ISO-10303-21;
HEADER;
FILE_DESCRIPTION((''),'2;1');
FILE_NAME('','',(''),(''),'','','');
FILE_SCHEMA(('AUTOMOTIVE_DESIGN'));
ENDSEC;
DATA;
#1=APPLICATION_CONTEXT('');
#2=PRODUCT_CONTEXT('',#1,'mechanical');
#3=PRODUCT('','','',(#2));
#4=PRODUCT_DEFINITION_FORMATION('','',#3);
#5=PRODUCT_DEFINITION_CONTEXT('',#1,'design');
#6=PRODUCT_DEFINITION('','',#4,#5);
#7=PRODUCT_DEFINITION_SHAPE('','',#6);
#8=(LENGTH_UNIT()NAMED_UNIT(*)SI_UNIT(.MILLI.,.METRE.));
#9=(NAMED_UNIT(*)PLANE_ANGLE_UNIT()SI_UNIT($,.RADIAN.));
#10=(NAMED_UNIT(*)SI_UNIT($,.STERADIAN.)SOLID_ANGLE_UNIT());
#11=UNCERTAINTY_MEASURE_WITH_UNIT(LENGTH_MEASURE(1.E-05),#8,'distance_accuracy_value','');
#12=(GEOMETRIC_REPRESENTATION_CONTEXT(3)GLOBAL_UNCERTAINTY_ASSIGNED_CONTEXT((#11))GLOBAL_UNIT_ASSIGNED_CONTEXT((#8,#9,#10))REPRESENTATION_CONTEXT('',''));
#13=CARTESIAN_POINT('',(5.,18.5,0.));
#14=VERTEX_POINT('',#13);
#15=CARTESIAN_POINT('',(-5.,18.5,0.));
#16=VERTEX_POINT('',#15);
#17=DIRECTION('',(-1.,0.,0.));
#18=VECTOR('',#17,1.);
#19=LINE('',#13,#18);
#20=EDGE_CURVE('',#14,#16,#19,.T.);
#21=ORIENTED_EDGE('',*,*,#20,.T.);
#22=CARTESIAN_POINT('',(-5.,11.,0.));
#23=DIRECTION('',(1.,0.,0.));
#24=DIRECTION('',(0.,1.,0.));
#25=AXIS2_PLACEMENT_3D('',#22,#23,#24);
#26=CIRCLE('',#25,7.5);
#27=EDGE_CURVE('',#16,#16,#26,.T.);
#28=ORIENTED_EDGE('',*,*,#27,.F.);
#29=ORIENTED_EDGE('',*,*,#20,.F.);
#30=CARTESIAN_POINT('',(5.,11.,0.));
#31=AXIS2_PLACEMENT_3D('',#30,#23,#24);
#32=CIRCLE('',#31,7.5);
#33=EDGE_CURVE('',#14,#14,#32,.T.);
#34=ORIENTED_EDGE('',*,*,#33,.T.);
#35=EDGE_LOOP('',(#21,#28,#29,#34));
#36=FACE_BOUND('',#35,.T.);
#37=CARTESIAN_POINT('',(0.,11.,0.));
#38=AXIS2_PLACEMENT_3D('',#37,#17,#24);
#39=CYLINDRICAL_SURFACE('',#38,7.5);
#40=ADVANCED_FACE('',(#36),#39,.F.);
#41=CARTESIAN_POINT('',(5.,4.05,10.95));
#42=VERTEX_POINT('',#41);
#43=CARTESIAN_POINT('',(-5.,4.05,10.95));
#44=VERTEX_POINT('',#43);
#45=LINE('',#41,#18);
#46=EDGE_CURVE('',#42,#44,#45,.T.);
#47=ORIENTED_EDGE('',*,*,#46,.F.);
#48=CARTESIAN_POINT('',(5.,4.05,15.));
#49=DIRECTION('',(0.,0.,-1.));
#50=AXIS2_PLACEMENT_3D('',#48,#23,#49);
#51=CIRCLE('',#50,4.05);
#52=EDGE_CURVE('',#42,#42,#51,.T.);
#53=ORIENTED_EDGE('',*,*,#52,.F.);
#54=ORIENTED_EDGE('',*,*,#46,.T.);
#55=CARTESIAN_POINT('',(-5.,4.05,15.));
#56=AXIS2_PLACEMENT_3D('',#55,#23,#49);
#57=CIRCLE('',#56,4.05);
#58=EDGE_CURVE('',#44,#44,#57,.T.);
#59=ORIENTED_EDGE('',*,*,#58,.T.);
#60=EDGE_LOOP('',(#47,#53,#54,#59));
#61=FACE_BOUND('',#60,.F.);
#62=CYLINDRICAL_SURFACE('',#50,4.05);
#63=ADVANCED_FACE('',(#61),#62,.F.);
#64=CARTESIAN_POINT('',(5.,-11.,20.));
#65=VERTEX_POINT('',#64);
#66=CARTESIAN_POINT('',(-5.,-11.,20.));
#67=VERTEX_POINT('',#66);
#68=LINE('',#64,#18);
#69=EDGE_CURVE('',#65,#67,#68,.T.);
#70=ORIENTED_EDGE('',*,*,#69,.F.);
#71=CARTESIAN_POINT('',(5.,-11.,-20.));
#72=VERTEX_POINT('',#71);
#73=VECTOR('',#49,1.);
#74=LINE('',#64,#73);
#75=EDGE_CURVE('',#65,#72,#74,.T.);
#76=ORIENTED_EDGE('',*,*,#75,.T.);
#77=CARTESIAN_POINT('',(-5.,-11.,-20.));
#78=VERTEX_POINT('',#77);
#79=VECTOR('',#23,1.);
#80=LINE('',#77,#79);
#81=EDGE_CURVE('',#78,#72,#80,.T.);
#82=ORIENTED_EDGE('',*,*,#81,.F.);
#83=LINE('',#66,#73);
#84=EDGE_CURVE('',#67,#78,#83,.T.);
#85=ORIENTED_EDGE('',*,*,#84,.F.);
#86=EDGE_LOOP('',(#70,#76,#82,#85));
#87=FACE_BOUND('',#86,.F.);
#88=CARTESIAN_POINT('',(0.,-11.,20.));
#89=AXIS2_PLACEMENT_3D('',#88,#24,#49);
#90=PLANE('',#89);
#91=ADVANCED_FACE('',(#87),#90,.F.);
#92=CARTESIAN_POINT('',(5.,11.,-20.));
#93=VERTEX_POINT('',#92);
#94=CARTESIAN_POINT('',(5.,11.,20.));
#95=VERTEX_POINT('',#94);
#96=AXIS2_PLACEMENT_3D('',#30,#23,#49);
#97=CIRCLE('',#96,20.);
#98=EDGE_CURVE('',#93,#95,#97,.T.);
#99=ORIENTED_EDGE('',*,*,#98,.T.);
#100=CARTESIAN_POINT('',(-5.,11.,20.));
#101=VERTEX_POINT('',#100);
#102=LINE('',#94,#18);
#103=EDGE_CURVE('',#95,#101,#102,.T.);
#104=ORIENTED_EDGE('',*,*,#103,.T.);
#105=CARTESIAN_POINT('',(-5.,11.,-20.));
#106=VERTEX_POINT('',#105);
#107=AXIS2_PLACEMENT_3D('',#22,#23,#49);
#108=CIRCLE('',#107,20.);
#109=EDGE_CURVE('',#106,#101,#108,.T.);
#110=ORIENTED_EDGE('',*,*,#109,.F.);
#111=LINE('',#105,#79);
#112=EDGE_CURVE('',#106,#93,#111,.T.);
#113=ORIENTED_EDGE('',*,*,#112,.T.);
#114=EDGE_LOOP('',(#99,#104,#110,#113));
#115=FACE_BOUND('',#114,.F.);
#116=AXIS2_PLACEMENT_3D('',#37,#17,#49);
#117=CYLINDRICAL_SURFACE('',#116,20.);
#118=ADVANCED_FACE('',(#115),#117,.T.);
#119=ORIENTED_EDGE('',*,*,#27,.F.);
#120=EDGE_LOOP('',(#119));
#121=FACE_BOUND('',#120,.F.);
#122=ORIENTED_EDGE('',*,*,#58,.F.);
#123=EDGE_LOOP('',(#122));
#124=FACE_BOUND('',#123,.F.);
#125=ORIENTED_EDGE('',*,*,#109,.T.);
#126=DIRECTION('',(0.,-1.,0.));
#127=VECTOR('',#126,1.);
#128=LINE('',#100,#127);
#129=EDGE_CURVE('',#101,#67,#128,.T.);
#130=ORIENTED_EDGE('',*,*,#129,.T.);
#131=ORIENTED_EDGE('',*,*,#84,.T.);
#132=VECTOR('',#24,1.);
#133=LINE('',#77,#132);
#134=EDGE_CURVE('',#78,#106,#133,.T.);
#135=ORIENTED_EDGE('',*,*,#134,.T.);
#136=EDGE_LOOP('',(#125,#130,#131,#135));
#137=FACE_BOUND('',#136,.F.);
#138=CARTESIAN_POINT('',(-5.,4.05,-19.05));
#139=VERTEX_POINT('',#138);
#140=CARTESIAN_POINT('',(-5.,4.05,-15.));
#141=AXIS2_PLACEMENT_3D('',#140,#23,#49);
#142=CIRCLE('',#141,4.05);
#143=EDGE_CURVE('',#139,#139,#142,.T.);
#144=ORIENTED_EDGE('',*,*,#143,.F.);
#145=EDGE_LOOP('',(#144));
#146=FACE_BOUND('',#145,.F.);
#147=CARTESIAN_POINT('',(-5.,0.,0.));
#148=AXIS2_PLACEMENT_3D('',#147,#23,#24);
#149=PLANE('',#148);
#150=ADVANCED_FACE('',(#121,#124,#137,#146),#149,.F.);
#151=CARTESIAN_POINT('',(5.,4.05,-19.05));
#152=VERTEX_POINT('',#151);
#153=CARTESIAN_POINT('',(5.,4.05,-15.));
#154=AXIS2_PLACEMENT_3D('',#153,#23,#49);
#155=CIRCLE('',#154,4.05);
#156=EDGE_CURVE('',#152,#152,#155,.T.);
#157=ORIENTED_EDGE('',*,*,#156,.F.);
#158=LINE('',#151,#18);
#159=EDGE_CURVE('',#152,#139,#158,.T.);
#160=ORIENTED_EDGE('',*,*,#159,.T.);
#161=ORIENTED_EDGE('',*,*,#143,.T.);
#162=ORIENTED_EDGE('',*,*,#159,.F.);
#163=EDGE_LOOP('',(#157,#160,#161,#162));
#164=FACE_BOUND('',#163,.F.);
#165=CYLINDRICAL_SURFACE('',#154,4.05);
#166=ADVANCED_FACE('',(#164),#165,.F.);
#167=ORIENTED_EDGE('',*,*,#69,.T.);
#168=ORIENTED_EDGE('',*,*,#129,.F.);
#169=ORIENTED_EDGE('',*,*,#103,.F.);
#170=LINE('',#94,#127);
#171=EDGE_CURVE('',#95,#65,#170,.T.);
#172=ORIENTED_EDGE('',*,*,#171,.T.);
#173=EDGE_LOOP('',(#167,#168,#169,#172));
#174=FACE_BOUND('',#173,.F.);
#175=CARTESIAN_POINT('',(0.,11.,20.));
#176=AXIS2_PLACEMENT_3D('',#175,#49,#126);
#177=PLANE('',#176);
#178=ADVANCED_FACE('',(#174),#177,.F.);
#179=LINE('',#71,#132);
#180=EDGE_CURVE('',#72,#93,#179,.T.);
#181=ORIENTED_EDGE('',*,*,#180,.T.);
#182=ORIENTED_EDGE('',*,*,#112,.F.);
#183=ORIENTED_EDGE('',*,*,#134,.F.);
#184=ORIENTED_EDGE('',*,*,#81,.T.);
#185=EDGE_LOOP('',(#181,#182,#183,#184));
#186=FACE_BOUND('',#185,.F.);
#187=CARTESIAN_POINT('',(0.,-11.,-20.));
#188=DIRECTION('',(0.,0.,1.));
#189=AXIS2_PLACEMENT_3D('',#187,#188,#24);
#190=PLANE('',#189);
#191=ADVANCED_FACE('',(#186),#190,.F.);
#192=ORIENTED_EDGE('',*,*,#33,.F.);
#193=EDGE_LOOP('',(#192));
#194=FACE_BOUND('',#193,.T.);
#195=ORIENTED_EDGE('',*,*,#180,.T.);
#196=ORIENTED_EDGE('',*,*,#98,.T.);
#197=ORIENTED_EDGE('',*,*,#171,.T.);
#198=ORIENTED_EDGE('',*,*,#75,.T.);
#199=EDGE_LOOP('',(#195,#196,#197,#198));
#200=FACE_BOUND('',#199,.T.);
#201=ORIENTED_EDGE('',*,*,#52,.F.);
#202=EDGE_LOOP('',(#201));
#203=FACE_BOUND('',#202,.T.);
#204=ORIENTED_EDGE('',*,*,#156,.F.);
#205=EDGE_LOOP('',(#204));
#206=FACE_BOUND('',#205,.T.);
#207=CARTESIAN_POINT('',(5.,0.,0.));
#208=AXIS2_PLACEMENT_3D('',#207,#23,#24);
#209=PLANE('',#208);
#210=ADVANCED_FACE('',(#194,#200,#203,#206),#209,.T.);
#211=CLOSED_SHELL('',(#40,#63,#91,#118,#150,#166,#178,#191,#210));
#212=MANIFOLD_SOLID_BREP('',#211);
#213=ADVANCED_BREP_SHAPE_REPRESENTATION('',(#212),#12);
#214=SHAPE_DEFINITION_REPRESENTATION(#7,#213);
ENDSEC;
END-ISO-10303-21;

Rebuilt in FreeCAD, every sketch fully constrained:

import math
import FreeCAD as App
import Part
import Sketcher
from FreeCAD import Vector

doc = App.newDocument("Part")
body = doc.addObject("PartDesign::Body", "Body")

# Sketch on YZ plane
sketch1 = body.newObject("Sketcher::SketchObject", "Sketch")
sketch1.AttachmentSupport = (doc.getObject("YZ_Plane"), [""])
sketch1.MapMode = "FlatFace"
sketch1.addGeometry([
    Part.LineSegment(Vector(-11, 20, 0), Vector(-11, -20, 0)),  # 0
    Part.LineSegment(Vector(-11, -20, 0), Vector(11, -20, 0)),  # 1
    Part.ArcOfCircle(Part.Circle(Vector(11, 0, 0), Vector(0, 0, 1), 20), math.radians(-90), math.radians(90)),  # 2
    Part.LineSegment(Vector(11, 20, 0), Vector(-11, 20, 0)),  # 3
    Part.Circle(Vector(11, 0, 0), Vector(0, 0, 1), 7.5),  # 4
], False)
sketch1.addConstraint([
    Sketcher.Constraint("Coincident", 0, 2, 1, 1),
    Sketcher.Constraint("Tangent", 1, 2, 2, 1),
    Sketcher.Constraint("Tangent", 2, 2, 3, 1),
    Sketcher.Constraint("Coincident", 3, 2, 0, 1),
    Sketcher.Constraint("Vertical", 0),
    Sketcher.Constraint("Horizontal", 1),
    Sketcher.Constraint("Horizontal", 3),
    Sketcher.Constraint("Coincident", 4, 3, 2, 3),
    Sketcher.Constraint("Symmetric", 0, 2, 2, 2, -1, 1),
    Sketcher.Constraint("Diameter", 4, 15.0),
    Sketcher.Constraint("Radius", 2, 20.0),
    Sketcher.Constraint("DistanceX", 1, 1, 1, 2, 22.0),
])
pad1 = body.newObject("PartDesign::Pad", "Pad")
pad1.Profile = sketch1
pad1.Length = 10
pad1.Midplane = True

# Sketch on YZ plane
sketch2 = body.newObject("Sketcher::SketchObject", "Sketch001")
sketch2.AttachmentSupport = (doc.getObject("YZ_Plane"), [""])
sketch2.MapMode = "FlatFace"
sketch2.AttachmentOffset = App.Placement(Vector(0, 0, 5), App.Rotation())
sketch2.addGeometry([
    Part.Circle(Vector(4.05, -15, 0), Vector(0, 0, 1), 4.05),
    Part.Circle(Vector(4.05, 15, 0), Vector(0, 0, 1), 4.05),
], False)
sketch2.addConstraint([
    Sketcher.Constraint("Equal", 0, 1),
    Sketcher.Constraint("Symmetric", 0, 3, 1, 3, -1),
    Sketcher.Constraint("Diameter", 0, 8.1),
    Sketcher.Constraint("DistanceY", 0, 3, -1, 1, 15.0),
    Sketcher.Constraint("DistanceX", -1, 1, 0, 3, 4.05),
])
pocket1 = body.newObject("PartDesign::Pocket", "Pocket")
pocket1.Profile = sketch2
pocket1.Type = "ThroughAll"

doc.recompute()
